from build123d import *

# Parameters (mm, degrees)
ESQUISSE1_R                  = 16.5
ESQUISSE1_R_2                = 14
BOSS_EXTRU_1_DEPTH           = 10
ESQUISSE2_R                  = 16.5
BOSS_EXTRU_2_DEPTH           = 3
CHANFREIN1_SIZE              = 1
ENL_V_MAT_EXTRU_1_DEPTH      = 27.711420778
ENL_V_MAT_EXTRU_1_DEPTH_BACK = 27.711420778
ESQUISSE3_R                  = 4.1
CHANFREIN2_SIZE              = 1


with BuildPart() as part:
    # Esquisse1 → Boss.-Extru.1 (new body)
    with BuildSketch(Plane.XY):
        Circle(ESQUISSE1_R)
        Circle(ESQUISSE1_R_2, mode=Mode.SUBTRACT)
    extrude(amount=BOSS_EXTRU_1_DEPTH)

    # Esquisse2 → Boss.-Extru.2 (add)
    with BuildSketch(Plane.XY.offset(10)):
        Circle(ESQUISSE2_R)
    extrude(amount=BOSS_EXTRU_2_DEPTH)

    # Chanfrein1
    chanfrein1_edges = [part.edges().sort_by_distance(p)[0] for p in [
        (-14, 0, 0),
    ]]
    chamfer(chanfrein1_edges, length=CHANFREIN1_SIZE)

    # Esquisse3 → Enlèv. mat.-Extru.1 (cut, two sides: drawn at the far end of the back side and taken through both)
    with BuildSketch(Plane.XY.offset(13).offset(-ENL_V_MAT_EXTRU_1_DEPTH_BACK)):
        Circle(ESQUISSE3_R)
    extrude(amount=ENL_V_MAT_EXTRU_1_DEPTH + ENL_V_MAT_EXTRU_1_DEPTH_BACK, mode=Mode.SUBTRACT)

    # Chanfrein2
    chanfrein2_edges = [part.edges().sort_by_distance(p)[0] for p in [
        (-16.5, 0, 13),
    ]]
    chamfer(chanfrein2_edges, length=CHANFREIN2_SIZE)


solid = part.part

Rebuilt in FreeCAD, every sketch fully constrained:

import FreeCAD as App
import Part
import Sketcher

V = App.Vector
Q = App.Units.Quantity


def edges_at(feature, points):
    """Names of the edges that pass closest to the given points."""
    edges = feature.Shape.Edges
    near = lambda p: min(range(len(edges)), key=lambda i: edges[i].distToShape(Part.Vertex(*p))[0])
    return sorted({f"Edge{near(p) + 1}" for p in points})

doc = App.newDocument("Part")
body = doc.addObject("PartDesign::Body", "Body")

sketch1 = body.newObject("Sketcher::SketchObject", "Sketch")
sketch1.AttachmentSupport = (doc.getObject("XY_Plane"), [""])
sketch1.MapMode = "FlatFace"
sketch1.addGeometry([
    Part.Circle(V(0, 0, 0), V(0, 0, 1), 16.5),
    Part.Circle(V(0, 0, 0), V(0, 0, 1), 14),
], False)
sketch1.addConstraint([
    Sketcher.Constraint("Coincident", 0, 3, -1, 1),
    Sketcher.Constraint("Coincident", 1, 3, -1, 1),
    Sketcher.Constraint("Diameter", 0, Q("33 mm")),
    Sketcher.Constraint("Diameter", 1, Q("28 mm")),
])
pad1 = body.newObject("PartDesign::Pad", "Pad")
pad1.Profile = sketch1
pad1.Length = 10

sketch2 = body.newObject("Sketcher::SketchObject", "Sketch001")
sketch2.AttachmentSupport = (doc.getObject("XY_Plane"), [""])
sketch2.MapMode = "FlatFace"
sketch2.AttachmentOffset = App.Placement(V(0, 0, 10), App.Rotation())
sketch2.addGeometry(Part.Circle(V(0, 0, 0), V(0, 0, 1), 16.5), False)
sketch2.addConstraint([
    Sketcher.Constraint("Coincident", 0, 3, -1, 1),
    Sketcher.Constraint("Diameter", 0, Q("33 mm")),
])
pad2 = body.newObject("PartDesign::Pad", "Pad001")
pad2.Profile = sketch2
pad2.Length = 3
doc.recompute()

chamfer = body.newObject("PartDesign::Chamfer", "Chamfer")
chamfer.Base = (pad2, edges_at(pad2, [(-14, 0, 0)]))
chamfer.Size = 1

sketch3 = body.newObject("Sketcher::SketchObject", "Sketch002")
sketch3.AttachmentSupport = (doc.getObject("XY_Plane"), [""])
sketch3.MapMode = "FlatFace"
sketch3.AttachmentOffset = App.Placement(V(0, 0, 13), App.Rotation())
sketch3.addGeometry(Part.Circle(V(0, 0, 0), V(0, 0, 1), 4.1), False)
sketch3.addConstraint([
    Sketcher.Constraint("Coincident", 0, 3, -1, 1),
    Sketcher.Constraint("Diameter", 0, Q("8.2 mm")),
])
pocket1 = body.newObject("PartDesign::Pocket", "Pocket")
pocket1.Profile = sketch3
pocket1.Type = "ThroughAll"
pocket1.Midplane = True
doc.recompute()

chamfer2 = body.newObject("PartDesign::Chamfer", "Chamfer001")
chamfer2.Base = (pocket1, edges_at(pocket1, [(-16.5, 0, 13)]))
chamfer2.Size = 1

doc.recompute()
